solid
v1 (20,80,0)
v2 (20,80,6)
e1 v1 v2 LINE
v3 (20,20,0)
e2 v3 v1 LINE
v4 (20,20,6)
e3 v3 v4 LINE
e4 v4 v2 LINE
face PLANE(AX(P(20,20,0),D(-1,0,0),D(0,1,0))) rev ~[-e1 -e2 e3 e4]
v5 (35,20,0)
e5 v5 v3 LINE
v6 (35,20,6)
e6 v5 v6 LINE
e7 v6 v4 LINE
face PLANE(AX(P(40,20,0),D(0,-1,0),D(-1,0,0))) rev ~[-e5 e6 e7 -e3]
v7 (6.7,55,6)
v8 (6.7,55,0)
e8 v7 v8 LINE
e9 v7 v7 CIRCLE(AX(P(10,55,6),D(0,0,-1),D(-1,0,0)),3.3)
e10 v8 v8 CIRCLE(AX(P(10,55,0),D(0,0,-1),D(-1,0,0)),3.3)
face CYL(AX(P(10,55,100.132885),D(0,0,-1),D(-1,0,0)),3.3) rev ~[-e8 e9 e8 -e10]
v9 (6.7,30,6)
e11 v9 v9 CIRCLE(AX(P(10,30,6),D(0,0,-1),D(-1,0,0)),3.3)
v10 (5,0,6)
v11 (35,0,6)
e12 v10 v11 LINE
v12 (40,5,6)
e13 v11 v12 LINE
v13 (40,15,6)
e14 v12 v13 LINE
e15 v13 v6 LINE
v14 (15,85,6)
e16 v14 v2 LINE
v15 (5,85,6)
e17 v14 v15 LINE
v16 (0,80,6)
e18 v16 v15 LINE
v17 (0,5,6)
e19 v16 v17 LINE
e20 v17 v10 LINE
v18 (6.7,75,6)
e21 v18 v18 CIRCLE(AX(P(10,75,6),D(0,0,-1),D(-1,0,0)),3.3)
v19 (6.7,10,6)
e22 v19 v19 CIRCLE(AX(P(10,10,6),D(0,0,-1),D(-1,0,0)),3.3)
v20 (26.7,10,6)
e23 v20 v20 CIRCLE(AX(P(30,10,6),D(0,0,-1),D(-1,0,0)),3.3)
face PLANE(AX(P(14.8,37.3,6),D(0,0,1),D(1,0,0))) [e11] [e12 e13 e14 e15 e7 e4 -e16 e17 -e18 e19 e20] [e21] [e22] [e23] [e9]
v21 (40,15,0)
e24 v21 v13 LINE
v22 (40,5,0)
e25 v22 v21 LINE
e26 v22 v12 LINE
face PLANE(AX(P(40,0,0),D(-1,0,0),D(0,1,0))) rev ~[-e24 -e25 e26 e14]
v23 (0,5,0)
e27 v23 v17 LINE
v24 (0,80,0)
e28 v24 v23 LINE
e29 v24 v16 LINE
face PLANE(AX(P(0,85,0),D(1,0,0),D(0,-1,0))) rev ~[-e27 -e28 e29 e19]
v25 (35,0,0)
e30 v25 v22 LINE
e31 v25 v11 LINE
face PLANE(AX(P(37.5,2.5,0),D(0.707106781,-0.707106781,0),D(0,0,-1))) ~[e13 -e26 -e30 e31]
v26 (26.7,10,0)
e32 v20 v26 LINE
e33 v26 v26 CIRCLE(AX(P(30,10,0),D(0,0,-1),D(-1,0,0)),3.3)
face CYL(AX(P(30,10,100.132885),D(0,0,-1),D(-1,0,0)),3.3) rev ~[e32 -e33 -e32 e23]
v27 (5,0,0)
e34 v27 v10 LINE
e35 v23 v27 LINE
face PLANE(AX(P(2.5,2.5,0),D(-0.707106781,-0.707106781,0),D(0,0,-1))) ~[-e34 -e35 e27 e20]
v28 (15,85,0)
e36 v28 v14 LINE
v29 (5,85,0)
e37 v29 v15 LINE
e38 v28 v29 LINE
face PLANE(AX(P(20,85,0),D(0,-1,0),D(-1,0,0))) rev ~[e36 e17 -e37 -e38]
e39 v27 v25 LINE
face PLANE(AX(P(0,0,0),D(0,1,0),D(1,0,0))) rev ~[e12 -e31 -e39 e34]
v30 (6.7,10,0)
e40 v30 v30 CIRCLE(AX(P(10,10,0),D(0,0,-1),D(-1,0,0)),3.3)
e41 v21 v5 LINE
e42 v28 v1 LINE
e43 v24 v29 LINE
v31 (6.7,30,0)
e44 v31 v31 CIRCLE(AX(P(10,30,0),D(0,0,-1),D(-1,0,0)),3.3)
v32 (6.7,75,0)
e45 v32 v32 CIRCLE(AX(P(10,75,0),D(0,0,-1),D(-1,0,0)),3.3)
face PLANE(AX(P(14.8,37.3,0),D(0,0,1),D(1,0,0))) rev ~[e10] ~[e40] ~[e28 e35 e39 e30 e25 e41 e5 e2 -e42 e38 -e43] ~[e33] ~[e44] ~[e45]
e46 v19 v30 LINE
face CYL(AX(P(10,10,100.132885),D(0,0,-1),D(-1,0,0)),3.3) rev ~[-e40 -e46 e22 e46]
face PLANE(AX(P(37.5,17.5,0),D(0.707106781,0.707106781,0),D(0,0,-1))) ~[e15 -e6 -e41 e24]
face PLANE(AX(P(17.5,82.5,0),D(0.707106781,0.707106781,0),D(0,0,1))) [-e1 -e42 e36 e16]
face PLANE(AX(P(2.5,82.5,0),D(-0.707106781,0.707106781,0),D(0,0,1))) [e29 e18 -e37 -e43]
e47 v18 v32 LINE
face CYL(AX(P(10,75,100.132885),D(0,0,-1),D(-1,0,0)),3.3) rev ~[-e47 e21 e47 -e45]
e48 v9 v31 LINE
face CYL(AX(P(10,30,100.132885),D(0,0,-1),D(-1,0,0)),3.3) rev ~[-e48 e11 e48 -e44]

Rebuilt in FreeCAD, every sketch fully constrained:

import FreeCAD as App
import Part
import Sketcher
from FreeCAD import Vector


def edges_at(feature, points):
    """Names of the edges that pass closest to the given points."""
    edges = feature.Shape.Edges
    near = lambda p: min(range(len(edges)), key=lambda i: edges[i].distToShape(Part.Vertex(*p))[0])
    return sorted({f"Edge{near(p) + 1}" for p in points})

doc = App.newDocument("Part")
body = doc.addObject("PartDesign::Body", "Body")

sketch1 = doc.addObject("Sketcher::SketchObject", "Sketch")
body.addObject(sketch1)
sketch1.AttachmentSupport = (doc.XY_Plane, [""])
sketch1.MapMode = "FlatFace"
sketch1.addGeometry([
    Part.LineSegment(Vector(0, 85, 0), Vector(0, 0, 0)),
    Part.LineSegment(Vector(0, 0, 0), Vector(40, 0, 0)),
    Part.LineSegment(Vector(40, 0, 0), Vector(40, 20, 0)),
    Part.LineSegment(Vector(40, 20, 0), Vector(20, 20, 0)),
    Part.LineSegment(Vector(20, 20, 0), Vector(20, 85, 0)),
    Part.LineSegment(Vector(20, 85, 0), Vector(0, 85, 0)),
], False)
sketch1.addConstraint([
    Sketcher.Constraint("Coincident", 0, 2, 1, 1),
    Sketcher.Constraint("Coincident", 1, 2, 2, 1),
    Sketcher.Constraint("Coincident", 2, 2, 3, 1),
    Sketcher.Constraint("Coincident", 3, 2, 4, 1),
    Sketcher.Constraint("Coincident", 4, 2, 5, 1),
    Sketcher.Constraint("Coincident", 5, 2, 0, 1),
    Sketcher.Constraint("Vertical", 0),
    Sketcher.Constraint("Horizontal", 1),
    Sketcher.Constraint("Vertical", 2),
    Sketcher.Constraint("Horizontal", 3),
    Sketcher.Constraint("Vertical", 4),
    Sketcher.Constraint("Horizontal", 5),
    Sketcher.Constraint("Coincident", 0, 2, -1, 1),
    Sketcher.Constraint("Equal", 3, 5),
    Sketcher.Constraint("Equal", 5, 2),
    Sketcher.Constraint("DistanceX", 1, 1, 1, 2, 40.0),
    Sketcher.Constraint("DistanceY", 0, 2, 0, 1, 85.0),
])
pad1 = doc.addObject("PartDesign::Pad", "Pad")
body.addObject(pad1)
pad1.Profile = sketch1
pad1.Length = 6

sketch2 = doc.addObject("Sketcher::SketchObject", "Sketch001")
body.addObject(sketch2)
sketch2.AttachmentSupport = (doc.XY_Plane, [""])
sketch2.MapMode = "FlatFace"
sketch2.AttachmentOffset = App.Placement(Vector(0, 0, 6), App.Rotation())
sketch2.addGeometry([
    Part.Circle(Vector(10, 75, 0), Vector(0, 0, 1), 3.3),
    Part.Circle(Vector(10, 55, 0), Vector(0, 0, 1), 3.3),
    Part.Circle(Vector(10, 10, 0), Vector(0, 0, 1), 3.3),
    Part.Circle(Vector(30, 10, 0), Vector(0, 0, 1), 3.3),
    Part.Circle(Vector(10, 30, 0), Vector(0, 0, 1), 3.3),
], False)
sketch2.addConstraint([
    Sketcher.Constraint("Equal", 0, 1),
    Sketcher.Constraint("Equal", 1, 2),
    Sketcher.Constraint("Equal", 2, 3),
    Sketcher.Constraint("Equal", 3, 4),
    Sketcher.Constraint("Horizontal", 2, 3, 3, 3),
    Sketcher.Constraint("Vertical", 0, 3, 1, 3),
    Sketcher.Constraint("Vertical", 1, 3, 2, 3),
    Sketcher.Constraint("Vertical", 2, 3, 4, 3),
    Sketcher.Constraint("Diameter", 0, 6.6),
    Sketcher.Constraint("DistanceX", -1, 1, 0, 3, 10.0),
    Sketcher.Constraint("DistanceY", -1, 1, 0, 3, 75.0),
    Sketcher.Constraint("DistanceY", -1, 1, 1, 3, 55.0),
    Sketcher.Constraint("DistanceY", -1, 1, 2, 3, 10.0),
    Sketcher.Constraint("DistanceX", -1, 1, 3, 3, 30.0),
    Sketcher.Constraint("DistanceY", -1, 1, 4, 3, 30.0),
])
doc.recompute()
hole = doc.addObject("PartDesign::Hole", "Hole")
body.addObject(hole)
hole.Profile = sketch2
hole.ThreadType = "None"
hole.Diameter = 6.6
hole.DepthType = "ThroughAll"
doc.recompute()

chamfer = doc.addObject("PartDesign::Chamfer", "Chamfer")
body.addObject(chamfer)
chamfer.Base = (hole, edges_at(hole, [
    (20, 85, 3),
    (0, 85, 3),
    (40, 20, 3),
    (40, 0, 3),
    (0, 0, 3),
]))
chamfer.Size = 5

doc.recompute()
